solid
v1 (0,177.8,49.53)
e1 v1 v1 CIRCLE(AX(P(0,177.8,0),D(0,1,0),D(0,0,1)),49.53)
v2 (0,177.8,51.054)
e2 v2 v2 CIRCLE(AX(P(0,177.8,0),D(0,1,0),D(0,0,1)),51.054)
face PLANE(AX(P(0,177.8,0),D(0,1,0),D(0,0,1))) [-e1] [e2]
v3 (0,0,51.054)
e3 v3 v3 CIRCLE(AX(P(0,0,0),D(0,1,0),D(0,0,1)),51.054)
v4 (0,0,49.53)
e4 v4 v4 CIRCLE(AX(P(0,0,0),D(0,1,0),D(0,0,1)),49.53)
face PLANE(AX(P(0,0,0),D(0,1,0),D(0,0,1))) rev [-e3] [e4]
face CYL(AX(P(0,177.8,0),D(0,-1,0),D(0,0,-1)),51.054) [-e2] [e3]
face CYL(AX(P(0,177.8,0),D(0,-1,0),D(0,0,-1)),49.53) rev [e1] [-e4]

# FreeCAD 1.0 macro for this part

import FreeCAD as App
import Part
import Sketcher
from FreeCAD import Vector
Q = App.Units.Quantity

doc = App.newDocument("Part")
params = doc.addObject("Spreadsheet::Sheet", "Params")
for row, (alias, value) in enumerate([
    ("sketch1_diameter", "3.9 in"),
    ("sketch1_diameter2", "4.02 in"),
    ("pad1_length", "7 in"),
], start=1):
    params.set(f"A{row}", alias)
    params.set(f"B{row}", "=" + value)
    params.setAlias(f"B{row}", alias)

body = doc.addObject("PartDesign::Body", "Body")

# Sketch on XZ plane
sketch1 = body.newObject("Sketcher::SketchObject", "Sketch")
sketch1.AttachmentSupport = (doc.getObject("XZ_Plane"), [""])
sketch1.MapMode = "FlatFace"
sketch1.addGeometry([
    Part.Circle(Vector(0, 0, 0), Vector(0, 0, 1), 51),
    Part.Circle(Vector(0, 0, 0), Vector(0, 0, 1), 50),
], False)
sketch1.addConstraint([
    Sketcher.Constraint("Coincident", 0, 3, -1, 1),
    Sketcher.Constraint("Coincident", 1, 3, -1, 1),
    Sketcher.Constraint("Diameter", 1, Q("3.9 in")),
    Sketcher.Constraint("Diameter", 0, Q("4.02 in")),
])
sketch1.setExpression("Constraints[2]", "Params.sketch1_diameter")
sketch1.setExpression("Constraints[3]", "Params.sketch1_diameter2")
pad1 = body.newObject("PartDesign::Pad", "Pad")
pad1.Profile = sketch1
pad1.setExpression("Length", "Params.pad1_length")
pad1.Reversed = True

doc.recompute()
